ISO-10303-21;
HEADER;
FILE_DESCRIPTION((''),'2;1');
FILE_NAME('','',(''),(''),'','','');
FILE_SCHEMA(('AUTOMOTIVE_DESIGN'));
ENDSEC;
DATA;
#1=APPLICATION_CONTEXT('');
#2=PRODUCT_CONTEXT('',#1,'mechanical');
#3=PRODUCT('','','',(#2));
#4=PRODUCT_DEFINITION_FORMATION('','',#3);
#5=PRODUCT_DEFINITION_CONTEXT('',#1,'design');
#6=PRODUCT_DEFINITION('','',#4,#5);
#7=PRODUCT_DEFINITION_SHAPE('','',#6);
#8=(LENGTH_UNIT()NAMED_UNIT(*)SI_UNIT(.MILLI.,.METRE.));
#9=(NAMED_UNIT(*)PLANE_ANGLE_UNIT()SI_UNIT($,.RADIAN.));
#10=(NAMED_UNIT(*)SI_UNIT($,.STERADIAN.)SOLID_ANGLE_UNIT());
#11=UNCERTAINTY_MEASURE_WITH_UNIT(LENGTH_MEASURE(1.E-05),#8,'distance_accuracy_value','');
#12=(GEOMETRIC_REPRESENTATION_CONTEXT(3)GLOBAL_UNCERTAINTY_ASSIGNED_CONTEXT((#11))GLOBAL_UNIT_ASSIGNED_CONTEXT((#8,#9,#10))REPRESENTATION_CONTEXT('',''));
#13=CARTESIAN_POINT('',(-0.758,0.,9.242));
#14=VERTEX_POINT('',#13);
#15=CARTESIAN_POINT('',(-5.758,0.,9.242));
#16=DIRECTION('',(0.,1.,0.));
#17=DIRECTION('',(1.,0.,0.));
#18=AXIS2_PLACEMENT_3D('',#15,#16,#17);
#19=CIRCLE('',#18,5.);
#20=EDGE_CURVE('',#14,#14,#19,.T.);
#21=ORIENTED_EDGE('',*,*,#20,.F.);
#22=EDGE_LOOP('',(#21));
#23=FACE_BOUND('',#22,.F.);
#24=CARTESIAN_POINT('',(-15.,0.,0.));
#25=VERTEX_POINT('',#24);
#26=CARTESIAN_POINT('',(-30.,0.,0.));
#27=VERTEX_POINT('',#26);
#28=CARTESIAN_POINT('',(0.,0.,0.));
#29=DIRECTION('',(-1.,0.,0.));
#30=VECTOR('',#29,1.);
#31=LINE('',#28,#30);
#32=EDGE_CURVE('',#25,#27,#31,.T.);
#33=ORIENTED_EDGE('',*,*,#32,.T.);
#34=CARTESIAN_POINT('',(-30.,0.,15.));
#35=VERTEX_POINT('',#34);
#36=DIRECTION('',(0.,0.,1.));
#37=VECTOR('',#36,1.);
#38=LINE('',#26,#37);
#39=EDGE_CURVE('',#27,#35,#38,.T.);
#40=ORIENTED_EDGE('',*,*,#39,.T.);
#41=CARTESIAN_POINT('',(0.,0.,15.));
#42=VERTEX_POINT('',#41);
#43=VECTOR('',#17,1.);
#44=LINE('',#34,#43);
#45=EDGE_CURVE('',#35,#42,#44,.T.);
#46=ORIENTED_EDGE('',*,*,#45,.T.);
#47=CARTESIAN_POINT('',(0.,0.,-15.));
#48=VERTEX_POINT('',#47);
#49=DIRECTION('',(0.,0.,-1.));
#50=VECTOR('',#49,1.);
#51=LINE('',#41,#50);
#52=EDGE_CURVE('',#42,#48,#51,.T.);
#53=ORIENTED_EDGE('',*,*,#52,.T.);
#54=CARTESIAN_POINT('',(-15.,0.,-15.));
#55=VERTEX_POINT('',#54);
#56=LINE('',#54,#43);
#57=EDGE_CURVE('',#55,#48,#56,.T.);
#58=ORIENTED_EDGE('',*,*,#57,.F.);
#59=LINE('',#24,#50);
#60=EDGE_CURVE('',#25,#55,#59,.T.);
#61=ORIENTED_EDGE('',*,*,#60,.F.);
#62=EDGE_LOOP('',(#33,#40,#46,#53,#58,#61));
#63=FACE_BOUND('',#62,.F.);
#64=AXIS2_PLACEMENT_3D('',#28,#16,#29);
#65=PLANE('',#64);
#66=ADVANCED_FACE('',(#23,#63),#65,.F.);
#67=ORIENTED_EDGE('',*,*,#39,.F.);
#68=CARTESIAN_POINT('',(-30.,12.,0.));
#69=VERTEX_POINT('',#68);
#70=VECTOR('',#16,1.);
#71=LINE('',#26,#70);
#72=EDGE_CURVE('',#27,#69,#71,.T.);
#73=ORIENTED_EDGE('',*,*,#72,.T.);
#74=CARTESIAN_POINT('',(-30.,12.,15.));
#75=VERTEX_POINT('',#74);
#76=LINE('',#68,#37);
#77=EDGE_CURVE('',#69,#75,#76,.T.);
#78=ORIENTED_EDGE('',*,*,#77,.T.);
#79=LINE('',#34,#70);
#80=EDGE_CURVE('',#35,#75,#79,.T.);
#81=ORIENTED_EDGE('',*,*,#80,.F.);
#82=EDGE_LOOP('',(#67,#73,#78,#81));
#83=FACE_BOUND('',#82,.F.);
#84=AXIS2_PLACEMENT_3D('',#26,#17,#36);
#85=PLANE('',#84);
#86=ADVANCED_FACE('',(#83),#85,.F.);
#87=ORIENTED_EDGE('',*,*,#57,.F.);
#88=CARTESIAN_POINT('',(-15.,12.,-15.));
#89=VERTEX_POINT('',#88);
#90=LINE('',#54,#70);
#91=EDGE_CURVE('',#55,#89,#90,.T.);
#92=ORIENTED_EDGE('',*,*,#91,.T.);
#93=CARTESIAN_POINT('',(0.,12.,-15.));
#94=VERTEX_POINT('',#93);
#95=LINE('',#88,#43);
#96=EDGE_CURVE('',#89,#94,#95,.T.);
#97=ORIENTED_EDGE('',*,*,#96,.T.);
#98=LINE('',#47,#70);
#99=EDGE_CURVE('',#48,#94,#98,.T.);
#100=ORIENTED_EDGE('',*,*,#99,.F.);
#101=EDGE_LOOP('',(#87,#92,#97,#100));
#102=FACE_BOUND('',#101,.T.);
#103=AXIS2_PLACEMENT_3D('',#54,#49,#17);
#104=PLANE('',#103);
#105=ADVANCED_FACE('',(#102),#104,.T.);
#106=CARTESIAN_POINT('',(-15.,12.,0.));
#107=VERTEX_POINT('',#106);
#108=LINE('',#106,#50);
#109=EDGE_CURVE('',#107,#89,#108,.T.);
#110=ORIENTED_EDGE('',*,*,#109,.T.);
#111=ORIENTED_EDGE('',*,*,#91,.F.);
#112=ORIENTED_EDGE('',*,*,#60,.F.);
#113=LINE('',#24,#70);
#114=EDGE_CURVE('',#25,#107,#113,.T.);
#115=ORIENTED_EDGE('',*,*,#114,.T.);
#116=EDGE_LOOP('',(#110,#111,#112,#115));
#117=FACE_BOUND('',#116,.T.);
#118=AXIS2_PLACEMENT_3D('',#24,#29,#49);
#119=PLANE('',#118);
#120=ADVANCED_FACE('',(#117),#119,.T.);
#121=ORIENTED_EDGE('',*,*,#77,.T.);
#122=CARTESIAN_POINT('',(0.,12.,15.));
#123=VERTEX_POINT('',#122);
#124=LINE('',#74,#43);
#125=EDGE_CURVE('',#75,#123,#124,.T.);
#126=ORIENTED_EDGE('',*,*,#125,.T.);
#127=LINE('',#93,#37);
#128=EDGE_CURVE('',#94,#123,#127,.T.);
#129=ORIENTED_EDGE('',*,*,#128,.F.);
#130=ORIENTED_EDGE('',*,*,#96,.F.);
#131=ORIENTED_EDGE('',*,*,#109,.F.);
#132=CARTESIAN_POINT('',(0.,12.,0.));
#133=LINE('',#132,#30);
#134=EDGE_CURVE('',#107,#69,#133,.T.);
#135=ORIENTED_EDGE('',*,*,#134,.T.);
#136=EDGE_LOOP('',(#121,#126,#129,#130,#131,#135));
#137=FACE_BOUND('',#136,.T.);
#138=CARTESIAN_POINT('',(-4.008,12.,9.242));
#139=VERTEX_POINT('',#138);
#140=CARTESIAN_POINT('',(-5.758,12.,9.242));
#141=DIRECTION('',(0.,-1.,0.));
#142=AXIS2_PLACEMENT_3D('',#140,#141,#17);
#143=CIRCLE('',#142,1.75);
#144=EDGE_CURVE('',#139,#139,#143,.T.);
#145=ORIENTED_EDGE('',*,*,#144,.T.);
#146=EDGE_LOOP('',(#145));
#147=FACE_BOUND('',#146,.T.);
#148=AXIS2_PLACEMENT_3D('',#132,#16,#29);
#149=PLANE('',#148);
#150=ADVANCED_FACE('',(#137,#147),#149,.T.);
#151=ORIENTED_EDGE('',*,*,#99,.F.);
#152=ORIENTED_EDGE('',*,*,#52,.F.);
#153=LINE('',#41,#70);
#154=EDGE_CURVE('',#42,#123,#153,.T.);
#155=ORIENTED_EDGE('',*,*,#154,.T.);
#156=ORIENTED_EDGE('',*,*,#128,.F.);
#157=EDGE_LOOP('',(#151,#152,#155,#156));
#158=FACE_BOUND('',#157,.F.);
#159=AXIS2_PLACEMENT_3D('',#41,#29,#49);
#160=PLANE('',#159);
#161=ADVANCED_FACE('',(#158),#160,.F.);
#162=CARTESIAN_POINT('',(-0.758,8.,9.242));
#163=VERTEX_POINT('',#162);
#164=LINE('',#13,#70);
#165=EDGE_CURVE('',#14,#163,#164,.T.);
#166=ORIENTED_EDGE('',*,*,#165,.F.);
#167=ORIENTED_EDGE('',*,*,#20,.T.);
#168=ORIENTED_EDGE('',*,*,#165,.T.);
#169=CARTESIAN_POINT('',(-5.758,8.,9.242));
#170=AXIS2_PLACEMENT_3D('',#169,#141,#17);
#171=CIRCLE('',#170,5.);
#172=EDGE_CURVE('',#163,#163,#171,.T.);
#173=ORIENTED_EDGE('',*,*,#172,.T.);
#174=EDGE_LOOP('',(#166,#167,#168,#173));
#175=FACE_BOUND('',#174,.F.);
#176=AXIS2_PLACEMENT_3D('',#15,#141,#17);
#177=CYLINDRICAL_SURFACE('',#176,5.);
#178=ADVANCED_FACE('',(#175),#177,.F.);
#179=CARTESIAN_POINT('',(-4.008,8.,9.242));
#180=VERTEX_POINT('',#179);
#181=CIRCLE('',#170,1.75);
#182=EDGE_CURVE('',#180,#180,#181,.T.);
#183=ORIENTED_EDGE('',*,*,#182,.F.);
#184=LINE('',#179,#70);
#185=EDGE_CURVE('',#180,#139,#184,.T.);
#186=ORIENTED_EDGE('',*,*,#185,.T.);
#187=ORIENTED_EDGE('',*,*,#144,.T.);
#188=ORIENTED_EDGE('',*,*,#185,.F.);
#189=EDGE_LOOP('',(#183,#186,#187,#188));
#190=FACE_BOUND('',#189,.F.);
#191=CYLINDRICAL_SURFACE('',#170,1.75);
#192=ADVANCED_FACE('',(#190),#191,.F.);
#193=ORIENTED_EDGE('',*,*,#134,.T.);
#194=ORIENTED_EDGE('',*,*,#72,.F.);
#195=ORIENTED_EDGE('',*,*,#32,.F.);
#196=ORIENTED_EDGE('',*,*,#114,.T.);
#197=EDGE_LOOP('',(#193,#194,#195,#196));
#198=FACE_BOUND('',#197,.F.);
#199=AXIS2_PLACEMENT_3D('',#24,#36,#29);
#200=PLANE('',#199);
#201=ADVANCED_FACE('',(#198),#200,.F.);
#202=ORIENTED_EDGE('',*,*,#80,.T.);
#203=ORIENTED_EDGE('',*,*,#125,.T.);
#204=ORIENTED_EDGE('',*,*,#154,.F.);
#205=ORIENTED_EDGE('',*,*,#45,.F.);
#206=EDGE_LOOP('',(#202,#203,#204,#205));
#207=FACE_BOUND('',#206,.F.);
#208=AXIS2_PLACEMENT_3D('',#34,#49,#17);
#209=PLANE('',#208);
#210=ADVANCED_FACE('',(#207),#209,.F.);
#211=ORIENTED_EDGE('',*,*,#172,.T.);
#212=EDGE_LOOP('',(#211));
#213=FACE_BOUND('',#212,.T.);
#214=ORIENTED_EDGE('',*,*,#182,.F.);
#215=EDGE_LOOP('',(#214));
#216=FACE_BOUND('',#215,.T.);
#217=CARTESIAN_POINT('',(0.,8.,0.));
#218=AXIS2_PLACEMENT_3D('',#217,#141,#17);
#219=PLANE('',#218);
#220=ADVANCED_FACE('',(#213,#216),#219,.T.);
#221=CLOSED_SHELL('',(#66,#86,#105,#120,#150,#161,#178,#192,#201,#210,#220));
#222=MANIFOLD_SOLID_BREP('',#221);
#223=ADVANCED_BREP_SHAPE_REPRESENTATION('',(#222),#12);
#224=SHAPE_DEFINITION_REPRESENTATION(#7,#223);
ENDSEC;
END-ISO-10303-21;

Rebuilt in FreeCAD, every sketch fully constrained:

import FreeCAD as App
import Part
import Sketcher
from FreeCAD import Vector
Q = App.Units.Quantity


def add_polygon(sketch, points):
    """Adds a closed chain of lines whose ends are joined by coincident constraints."""
    first, n = sketch.GeometryCount, len(points)
    for a, b in zip(points, points[1:] + points[:1]):
        sketch.addGeometry(Part.LineSegment(App.Vector(*a, 0), App.Vector(*b, 0)), False)
    for i in range(n):
        sketch.addConstraint(Sketcher.Constraint("Coincident", first + i, 2, first + (i + 1) % n, 1))

doc = App.newDocument("Part")
body = doc.addObject("PartDesign::Body", "Body")

# Sketch on XZ plane
sketch1 = body.newObject("Sketcher::SketchObject", "Sketch")
sketch1.AttachmentSupport = (doc.getObject("XZ_Plane"), [""])
sketch1.MapMode = "FlatFace"
add_polygon(sketch1, [(0, 15), (0, -15), (-15, -15), (-15, 0), (-30, 0), (-30, 15)])  # lines 0-5
sketch1.addConstraint([
    Sketcher.Constraint("Vertical", 0),
    Sketcher.Constraint("Horizontal", 1),
    Sketcher.Constraint("Vertical", 2),
    Sketcher.Constraint("Horizontal", 3),
    Sketcher.Constraint("Vertical", 4),
    Sketcher.Constraint("Horizontal", 5),
    Sketcher.Constraint("Symmetric", 0, 2, 5, 2, -1, 1),
    Sketcher.Constraint("PointOnObject", 2, 2, -1),
    Sketcher.Constraint("Equal", 1, 3),
    Sketcher.Constraint("Equal", 5, 0),
    Sketcher.Constraint("DistanceX", 1, 2, 1, 1, Q("15 mm")),
])
pad1 = body.newObject("PartDesign::Pad", "Pad")
pad1.Profile = sketch1
pad1.Length = 12
pad1.Reversed = True

# Sketch on XZ plane
sketch2 = body.newObject("Sketcher::SketchObject", "Sketch001")
sketch2.AttachmentSupport = (doc.getObject("XZ_Plane"), [""])
sketch2.MapMode = "FlatFace"
sketch2.addGeometry(Part.Circle(Vector(-6, 9, 0), Vector(0, 0, 1), 5), False)
sketch2.addConstraint([
    Sketcher.Constraint("Diameter", 0, Q("10 mm")),
    Sketcher.Constraint("DistanceX", 0, 3, -1, 1, Q("5.758 mm")),
    Sketcher.Constraint("DistanceY", -1, 1, 0, 3, Q("9.242 mm")),
])
pocket1 = body.newObject("PartDesign::Pocket", "Pocket")
pocket1.Profile = sketch2
pocket1.Length = 8

# Sketch on XZ plane
sketch3 = body.newObject("Sketcher::SketchObject", "Sketch002")
sketch3.AttachmentSupport = (doc.getObject("XZ_Plane"), [""])
sketch3.MapMode = "FlatFace"
sketch3.AttachmentOffset = App.Placement(Vector(0, 0, -8), App.Rotation())
sketch3.addGeometry(Part.Circle(Vector(-5.8, 9.2, 0), Vector(0, 0, 1), 1.8), False)
sketch3.addConstraint([
    Sketcher.Constraint("Diameter", 0, Q("3.5 mm")),
    Sketcher.Constraint("DistanceX", 0, 3, -1, 1, Q("5.758 mm")),
    Sketcher.Constraint("DistanceY", -1, 1, 0, 3, Q("9.242 mm")),
])
pocket2 = body.newObject("PartDesign::Pocket", "Pocket001")
pocket2.Profile = sketch3
pocket2.Length = 4

doc.recompute()
